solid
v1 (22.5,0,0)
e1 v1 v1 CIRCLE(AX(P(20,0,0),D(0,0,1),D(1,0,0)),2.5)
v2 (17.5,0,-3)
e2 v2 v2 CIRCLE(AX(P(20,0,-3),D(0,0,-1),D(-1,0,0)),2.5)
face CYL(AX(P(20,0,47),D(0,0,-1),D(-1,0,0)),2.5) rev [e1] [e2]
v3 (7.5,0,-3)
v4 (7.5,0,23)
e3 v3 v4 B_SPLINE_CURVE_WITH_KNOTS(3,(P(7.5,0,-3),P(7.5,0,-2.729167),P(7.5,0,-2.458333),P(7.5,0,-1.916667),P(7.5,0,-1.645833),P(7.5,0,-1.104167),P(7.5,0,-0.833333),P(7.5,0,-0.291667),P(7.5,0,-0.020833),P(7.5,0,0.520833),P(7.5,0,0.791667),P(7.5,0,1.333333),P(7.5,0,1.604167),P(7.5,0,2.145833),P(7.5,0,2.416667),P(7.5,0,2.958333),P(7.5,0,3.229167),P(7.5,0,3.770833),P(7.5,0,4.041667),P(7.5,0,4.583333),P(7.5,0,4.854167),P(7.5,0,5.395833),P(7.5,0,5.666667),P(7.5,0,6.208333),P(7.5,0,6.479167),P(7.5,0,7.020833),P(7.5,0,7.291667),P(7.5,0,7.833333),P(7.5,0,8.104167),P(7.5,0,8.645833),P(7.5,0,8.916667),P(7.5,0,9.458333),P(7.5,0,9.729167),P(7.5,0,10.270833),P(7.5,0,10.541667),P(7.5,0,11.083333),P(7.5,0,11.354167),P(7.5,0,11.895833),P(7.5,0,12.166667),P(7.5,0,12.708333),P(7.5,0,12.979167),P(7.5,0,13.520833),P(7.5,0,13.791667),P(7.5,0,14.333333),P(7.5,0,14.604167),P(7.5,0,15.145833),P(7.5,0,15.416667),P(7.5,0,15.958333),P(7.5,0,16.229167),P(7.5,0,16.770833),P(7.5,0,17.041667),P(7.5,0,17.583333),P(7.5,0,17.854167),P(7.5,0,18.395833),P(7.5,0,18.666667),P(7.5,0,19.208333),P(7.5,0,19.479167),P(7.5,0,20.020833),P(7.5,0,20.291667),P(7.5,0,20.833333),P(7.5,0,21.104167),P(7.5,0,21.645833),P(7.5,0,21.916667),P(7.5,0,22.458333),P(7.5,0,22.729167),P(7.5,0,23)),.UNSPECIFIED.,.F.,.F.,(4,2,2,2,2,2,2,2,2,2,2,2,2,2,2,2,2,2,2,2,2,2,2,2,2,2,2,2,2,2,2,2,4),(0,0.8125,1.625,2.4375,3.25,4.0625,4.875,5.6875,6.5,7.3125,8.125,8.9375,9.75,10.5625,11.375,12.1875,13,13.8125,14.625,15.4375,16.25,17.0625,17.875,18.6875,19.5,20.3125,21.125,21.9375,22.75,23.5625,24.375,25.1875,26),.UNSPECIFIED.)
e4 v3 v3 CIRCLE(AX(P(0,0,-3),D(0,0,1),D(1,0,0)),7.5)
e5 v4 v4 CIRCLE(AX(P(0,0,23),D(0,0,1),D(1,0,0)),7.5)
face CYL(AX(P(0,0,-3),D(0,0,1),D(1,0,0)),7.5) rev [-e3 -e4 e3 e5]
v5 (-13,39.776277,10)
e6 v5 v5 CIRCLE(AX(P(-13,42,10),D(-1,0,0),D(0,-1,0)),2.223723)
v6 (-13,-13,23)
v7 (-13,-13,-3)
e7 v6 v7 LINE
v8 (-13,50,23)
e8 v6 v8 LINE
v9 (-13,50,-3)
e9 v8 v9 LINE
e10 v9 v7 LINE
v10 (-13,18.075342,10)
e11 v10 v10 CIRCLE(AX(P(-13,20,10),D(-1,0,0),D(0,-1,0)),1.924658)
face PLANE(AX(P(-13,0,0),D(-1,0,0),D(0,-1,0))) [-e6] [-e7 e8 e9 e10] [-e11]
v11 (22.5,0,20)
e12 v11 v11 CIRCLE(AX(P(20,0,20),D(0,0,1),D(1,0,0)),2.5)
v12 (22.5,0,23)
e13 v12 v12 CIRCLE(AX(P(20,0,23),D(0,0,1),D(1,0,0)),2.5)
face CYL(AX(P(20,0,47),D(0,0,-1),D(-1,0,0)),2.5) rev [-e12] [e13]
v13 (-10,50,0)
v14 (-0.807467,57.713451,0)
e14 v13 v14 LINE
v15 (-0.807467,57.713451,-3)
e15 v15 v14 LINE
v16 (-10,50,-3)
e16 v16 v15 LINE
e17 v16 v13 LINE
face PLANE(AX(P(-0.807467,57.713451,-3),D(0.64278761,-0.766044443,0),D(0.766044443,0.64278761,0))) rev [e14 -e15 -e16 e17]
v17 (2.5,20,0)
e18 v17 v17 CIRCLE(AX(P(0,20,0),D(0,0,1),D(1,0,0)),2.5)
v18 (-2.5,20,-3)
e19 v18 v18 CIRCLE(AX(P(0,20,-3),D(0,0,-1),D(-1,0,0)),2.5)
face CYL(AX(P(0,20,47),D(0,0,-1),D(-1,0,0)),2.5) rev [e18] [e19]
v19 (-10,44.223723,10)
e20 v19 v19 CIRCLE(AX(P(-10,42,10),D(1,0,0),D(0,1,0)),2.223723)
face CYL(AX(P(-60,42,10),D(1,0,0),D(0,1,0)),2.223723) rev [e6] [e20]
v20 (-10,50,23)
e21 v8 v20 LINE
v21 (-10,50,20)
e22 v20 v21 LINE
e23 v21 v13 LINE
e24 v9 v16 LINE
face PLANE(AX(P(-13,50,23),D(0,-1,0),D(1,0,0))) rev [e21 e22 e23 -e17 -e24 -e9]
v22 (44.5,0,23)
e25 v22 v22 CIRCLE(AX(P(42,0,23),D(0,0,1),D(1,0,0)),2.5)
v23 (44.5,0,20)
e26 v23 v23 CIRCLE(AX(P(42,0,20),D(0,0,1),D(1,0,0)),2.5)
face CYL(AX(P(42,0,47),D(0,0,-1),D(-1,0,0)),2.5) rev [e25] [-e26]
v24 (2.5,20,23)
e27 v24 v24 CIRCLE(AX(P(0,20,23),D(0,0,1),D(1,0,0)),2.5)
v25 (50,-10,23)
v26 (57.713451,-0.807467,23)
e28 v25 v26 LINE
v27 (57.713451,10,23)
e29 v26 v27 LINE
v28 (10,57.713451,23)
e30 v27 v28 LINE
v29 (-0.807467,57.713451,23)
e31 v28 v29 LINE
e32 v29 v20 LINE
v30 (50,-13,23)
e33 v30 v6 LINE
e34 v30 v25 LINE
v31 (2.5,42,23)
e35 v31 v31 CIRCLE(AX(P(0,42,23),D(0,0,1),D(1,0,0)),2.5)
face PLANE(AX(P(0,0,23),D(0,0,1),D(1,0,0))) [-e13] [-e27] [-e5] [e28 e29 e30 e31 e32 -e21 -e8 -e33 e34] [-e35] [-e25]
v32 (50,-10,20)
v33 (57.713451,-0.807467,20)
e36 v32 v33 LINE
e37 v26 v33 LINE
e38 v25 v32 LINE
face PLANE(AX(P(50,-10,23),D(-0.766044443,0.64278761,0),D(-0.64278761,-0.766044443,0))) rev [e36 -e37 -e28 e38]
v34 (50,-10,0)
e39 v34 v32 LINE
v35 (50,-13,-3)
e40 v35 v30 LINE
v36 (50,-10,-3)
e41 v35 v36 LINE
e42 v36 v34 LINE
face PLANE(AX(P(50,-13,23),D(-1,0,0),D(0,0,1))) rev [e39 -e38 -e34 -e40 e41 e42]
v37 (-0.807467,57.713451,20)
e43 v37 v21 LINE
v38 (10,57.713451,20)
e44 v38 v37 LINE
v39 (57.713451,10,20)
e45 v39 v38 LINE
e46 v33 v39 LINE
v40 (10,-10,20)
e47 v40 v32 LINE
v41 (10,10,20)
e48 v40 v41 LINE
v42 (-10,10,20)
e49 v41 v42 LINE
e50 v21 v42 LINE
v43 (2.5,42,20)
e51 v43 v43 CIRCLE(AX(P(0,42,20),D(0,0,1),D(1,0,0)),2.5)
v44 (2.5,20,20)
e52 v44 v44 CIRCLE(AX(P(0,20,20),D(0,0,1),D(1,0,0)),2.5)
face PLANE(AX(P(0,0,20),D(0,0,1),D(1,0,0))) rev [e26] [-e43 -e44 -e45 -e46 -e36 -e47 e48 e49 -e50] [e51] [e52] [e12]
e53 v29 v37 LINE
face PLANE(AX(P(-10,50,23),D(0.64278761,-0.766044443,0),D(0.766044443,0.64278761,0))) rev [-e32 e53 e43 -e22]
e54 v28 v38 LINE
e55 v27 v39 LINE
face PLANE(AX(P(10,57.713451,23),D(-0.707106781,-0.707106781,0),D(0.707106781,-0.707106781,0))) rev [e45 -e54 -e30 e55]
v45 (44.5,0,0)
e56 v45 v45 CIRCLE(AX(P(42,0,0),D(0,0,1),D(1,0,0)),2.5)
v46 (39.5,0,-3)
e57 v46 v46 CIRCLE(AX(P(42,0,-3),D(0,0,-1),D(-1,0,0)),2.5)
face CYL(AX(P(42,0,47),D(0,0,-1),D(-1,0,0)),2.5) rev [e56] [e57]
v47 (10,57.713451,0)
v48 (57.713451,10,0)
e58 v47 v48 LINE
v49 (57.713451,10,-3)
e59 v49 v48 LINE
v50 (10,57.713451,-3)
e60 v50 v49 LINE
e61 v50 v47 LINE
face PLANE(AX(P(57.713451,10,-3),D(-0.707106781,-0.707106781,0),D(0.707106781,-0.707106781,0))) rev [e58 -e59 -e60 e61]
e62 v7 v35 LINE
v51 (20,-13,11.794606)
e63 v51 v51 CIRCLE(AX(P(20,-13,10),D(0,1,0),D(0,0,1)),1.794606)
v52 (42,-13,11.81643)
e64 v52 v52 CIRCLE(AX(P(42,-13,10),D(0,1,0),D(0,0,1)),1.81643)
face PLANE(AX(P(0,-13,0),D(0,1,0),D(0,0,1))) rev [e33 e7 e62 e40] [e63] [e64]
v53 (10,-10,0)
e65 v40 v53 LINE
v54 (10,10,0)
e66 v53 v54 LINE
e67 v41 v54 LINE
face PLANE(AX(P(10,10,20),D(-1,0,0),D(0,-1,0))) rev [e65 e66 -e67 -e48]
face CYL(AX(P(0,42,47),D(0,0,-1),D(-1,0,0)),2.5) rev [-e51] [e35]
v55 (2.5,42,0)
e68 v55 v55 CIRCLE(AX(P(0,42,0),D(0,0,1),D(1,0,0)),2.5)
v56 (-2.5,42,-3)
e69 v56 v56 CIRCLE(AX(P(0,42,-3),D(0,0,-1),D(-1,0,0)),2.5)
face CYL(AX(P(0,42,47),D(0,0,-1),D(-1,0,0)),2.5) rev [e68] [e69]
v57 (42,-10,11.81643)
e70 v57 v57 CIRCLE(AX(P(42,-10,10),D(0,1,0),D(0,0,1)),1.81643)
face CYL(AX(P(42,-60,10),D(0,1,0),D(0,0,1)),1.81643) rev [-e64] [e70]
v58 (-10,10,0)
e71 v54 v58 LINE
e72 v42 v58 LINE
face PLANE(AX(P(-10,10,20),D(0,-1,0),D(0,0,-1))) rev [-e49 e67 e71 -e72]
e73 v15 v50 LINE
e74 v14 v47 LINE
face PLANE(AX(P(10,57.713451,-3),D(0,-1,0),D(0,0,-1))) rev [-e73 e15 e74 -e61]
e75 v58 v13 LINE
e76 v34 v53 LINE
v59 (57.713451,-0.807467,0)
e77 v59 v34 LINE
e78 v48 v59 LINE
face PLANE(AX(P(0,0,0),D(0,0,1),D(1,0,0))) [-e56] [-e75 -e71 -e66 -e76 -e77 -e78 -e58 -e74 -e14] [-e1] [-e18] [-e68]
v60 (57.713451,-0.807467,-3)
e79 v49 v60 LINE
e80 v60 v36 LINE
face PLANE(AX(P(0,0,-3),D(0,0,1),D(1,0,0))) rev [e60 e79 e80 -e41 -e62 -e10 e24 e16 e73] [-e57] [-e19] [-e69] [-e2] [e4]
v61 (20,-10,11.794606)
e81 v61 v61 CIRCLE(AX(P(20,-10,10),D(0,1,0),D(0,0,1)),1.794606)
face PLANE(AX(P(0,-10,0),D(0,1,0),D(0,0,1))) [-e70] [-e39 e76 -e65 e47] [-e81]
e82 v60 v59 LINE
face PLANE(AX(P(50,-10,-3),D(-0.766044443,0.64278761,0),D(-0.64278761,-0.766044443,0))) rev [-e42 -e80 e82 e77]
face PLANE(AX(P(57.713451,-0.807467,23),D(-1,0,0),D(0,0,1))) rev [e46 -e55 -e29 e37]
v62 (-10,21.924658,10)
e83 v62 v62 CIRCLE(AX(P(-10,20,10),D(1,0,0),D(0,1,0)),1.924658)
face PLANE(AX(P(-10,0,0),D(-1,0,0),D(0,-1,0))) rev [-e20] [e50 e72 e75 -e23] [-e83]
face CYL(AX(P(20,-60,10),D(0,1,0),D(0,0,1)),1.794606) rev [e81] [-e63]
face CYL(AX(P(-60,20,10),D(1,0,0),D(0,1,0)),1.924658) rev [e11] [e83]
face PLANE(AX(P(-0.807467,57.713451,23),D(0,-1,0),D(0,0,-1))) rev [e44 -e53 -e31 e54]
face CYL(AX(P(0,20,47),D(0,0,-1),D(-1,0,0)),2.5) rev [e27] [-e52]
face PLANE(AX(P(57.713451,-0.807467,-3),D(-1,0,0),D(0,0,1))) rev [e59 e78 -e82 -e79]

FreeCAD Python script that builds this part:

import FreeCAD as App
import Part
import Sketcher
from FreeCAD import Vector
Q = App.Units.Quantity

doc = App.newDocument("Part")
body = doc.addObject("PartDesign::Body", "Body")

sketch1 = doc.addObject("Sketcher::SketchObject", "Sketch")
body.addObject(sketch1)
sketch1.AttachmentSupport = (doc.XY_Plane, [""])
sketch1.MapMode = "FlatFace"
sketch1.addGeometry(Part.LineSegment(Vector(-10, 10, 0), Vector(-10, -10, 0)), False)
sketch1.addGeometry(Part.LineSegment(Vector(-10, -10, 0), Vector(10, -10, 0)), False)
sketch1.addGeometry(Part.LineSegment(Vector(10, -10, 0), Vector(10, 10, 0)), False)
sketch1.addGeometry(Part.LineSegment(Vector(10, 10, 0), Vector(-10, 10, 0)), False)
sketch1.addConstraint(Sketcher.Constraint("Coincident", 0, 2, 1, 1))
sketch1.addConstraint(Sketcher.Constraint("Coincident", 1, 2, 2, 1))
sketch1.addConstraint(Sketcher.Constraint("Coincident", 2, 2, 3, 1))
sketch1.addConstraint(Sketcher.Constraint("Coincident", 3, 2, 0, 1))
sketch1.addConstraint(Sketcher.Constraint("Vertical", 0))
sketch1.addConstraint(Sketcher.Constraint("Horizontal", 1))
sketch1.addConstraint(Sketcher.Constraint("Vertical", 2))
sketch1.addConstraint(Sketcher.Constraint("Horizontal", 3))
sketch1.addConstraint(Sketcher.Constraint("Symmetric", 0, 2, 2, 2, -1, 1))
sketch1.addConstraint(Sketcher.Constraint("Equal", 3, 0))
sketch1.addConstraint(Sketcher.Constraint("DistanceX", 1, 1, 1, 2, 20.0))
pad1 = doc.addObject("PartDesign::Pad", "Pad")
body.addObject(pad1)
pad1.Profile = sketch1
pad1.Length = 20

sketch2 = doc.addObject("Sketcher::SketchObject", "Sketch001")
body.addObject(sketch2)
sketch2.AttachmentSupport = (doc.XY_Plane, [""])
sketch2.MapMode = "FlatFace"
sketch2.AttachmentOffset = App.Placement(Vector(0, 0, 20), App.Rotation())
sketch2.addGeometry(Part.LineSegment(Vector(-10, 50, 0), Vector(-10, -10, 0)), False)
sketch2.addGeometry(Part.LineSegment(Vector(-10, -10, 0), Vector(50, -10, 0)), False)
sketch2.addGeometry(Part.LineSegment(Vector(50, -10, 0), Vector(58, -1, 0)), False)
sketch2.addGeometry(Part.LineSegment(Vector(58, -1, 0), Vector(58, 10, 0)), False)
sketch2.addGeometry(Part.LineSegment(Vector(58, 10, 0), Vector(10, 58, 0)), False)
sketch2.addGeometry(Part.LineSegment(Vector(10, 58, 0), Vector(-1, 58, 0)), False)
sketch2.addGeometry(Part.LineSegment(Vector(-1, 58, 0), Vector(-10, 50, 0)), False)
sketch2.addConstraint(Sketcher.Constraint("Coincident", 0, 2, 1, 1))
sketch2.addConstraint(Sketcher.Constraint("Coincident", 1, 2, 2, 1))
sketch2.addConstraint(Sketcher.Constraint("Coincident", 2, 2, 3, 1))
sketch2.addConstraint(Sketcher.Constraint("Coincident", 3, 2, 4, 1))
sketch2.addConstraint(Sketcher.Constraint("Coincident", 4, 2, 5, 1))
sketch2.addConstraint(Sketcher.Constraint("Coincident", 5, 2, 6, 1))
sketch2.addConstraint(Sketcher.Constraint("Coincident", 6, 2, 0, 1))
sketch2.addConstraint(Sketcher.Constraint("Vertical", 0))
sketch2.addConstraint(Sketcher.Constraint("Horizontal", 1))
sketch2.addConstraint(Sketcher.Constraint("Vertical", 3))
sketch2.addConstraint(Sketcher.Constraint("Horizontal", 5))
sketch2.addConstraint(Sketcher.Constraint("Equal", 1, 0))
sketch2.addConstraint(Sketcher.Constraint("Equal", 5, 3))
sketch2.addConstraint(Sketcher.Constraint("Equal", 2, 6))
sketch2.addConstraint(Sketcher.Constraint("DistanceX", 1, 1, 1, 2, 60.0))
sketch2.addConstraint(Sketcher.Constraint("Angle", 2, Q("50 deg")))
sketch2.addConstraint(Sketcher.Constraint("Angle", 4, Q("135 deg")))
sketch2.addConstraint(Sketcher.Constraint("Distance", 2, 12.0))
sketch2.addConstraint(Sketcher.Constraint("DistanceX", 0, 2, -1, 1, 10.0))
sketch2.addConstraint(Sketcher.Constraint("DistanceY", 0, 2, -1, 1, 10.0))
sketch2.addConstraint(Sketcher.Constraint("DistanceY", -1, 1, 3, 2, 10.0))
pad2 = doc.addObject("PartDesign::Pad", "Pad001")
body.addObject(pad2)
pad2.Profile = sketch2
pad2.Length = 3

sketch3 = doc.addObject("Sketcher::SketchObject", "Sketch002")
body.addObject(sketch3)
sketch3.AttachmentSupport = (doc.XY_Plane, [""])
sketch3.MapMode = "FlatFace"
sketch3.addGeometry(Part.LineSegment(Vector(50, -10, 0), Vector(-10, -10, 0)), False)
sketch3.addGeometry(Part.LineSegment(Vector(-10, -10, 0), Vector(-10, 50, 0)), False)
sketch3.addGeometry(Part.LineSegment(Vector(-10, 50, 0), Vector(-1, 58, 0)), False)
sketch3.addGeometry(Part.LineSegment(Vector(-1, 58, 0), Vector(10, 58, 0)), False)
sketch3.addGeometry(Part.LineSegment(Vector(10, 58, 0), Vector(58, 10, 0)), False)
sketch3.addGeometry(Part.LineSegment(Vector(58, 10, 0), Vector(58, -1, 0)), False)
sketch3.addGeometry(Part.LineSegment(Vector(58, -1, 0), Vector(50, -10, 0)), False)
sketch3.addConstraint(Sketcher.Constraint("Coincident", 0, 2, 1, 1))
sketch3.addConstraint(Sketcher.Constraint("Coincident", 1, 2, 2, 1))
sketch3.addConstraint(Sketcher.Constraint("Coincident", 2, 2, 3, 1))
sketch3.addConstraint(Sketcher.Constraint("Coincident", 3, 2, 4, 1))
sketch3.addConstraint(Sketcher.Constraint("Coincident", 4, 2, 5, 1))
sketch3.addConstraint(Sketcher.Constraint("Coincident", 5, 2, 6, 1))
sketch3.addConstraint(Sketcher.Constraint("Coincident", 6, 2, 0, 1))
sketch3.addConstraint(Sketcher.Constraint("Horizontal", 0))
sketch3.addConstraint(Sketcher.Constraint("Vertical", 1))
sketch3.addConstraint(Sketcher.Constraint("Horizontal", 3))
sketch3.addConstraint(Sketcher.Constraint("Vertical", 5))
sketch3.addConstraint(Sketcher.Constraint("Equal", 0, 1))
sketch3.addConstraint(Sketcher.Constraint("Equal", 3, 5))
sketch3.addConstraint(Sketcher.Constraint("Equal", 2, 6))
sketch3.addConstraint(Sketcher.Constraint("DistanceX", 0, 2, 0, 1, 60.0))
sketch3.addConstraint(Sketcher.Constraint("Angle", 2, Q("40 deg")))
sketch3.addConstraint(Sketcher.Constraint("Angle", 4, Q("-45 deg")))
sketch3.addConstraint(Sketcher.Constraint("Distance", 2, 12.0))
sketch3.addConstraint(Sketcher.Constraint("DistanceX", 0, 2, -1, 1, 10.0))
sketch3.addConstraint(Sketcher.Constraint("DistanceY", 0, 2, -1, 1, 10.0))
sketch3.addConstraint(Sketcher.Constraint("DistanceX", -1, 1, 3, 2, 10.0))
pad3 = doc.addObject("PartDesign::Pad", "Pad002")
body.addObject(pad3)
pad3.Profile = sketch3
pad3.Length = 3
pad3.Reversed = True

sketch4 = doc.addObject("Sketcher::SketchObject", "Sketch003")
body.addObject(sketch4)
sketch4.AttachmentSupport = (doc.YZ_Plane, [""])
sketch4.MapMode = "FlatFace"
sketch4.AttachmentOffset = App.Placement(Vector(0, 0, -10), App.Rotation())
sketch4.addGeometry(Part.LineSegment(Vector(50, -3, 0), Vector(-10, -3, 0)), False)
sketch4.addGeometry(Part.LineSegment(Vector(-10, -3, 0), Vector(-10, 23, 0)), False)
sketch4.addGeometry(Part.LineSegment(Vector(-10, 23, 0), Vector(50, 23, 0)), False)
sketch4.addGeometry(Part.LineSegment(Vector(50, 23, 0), Vector(50, -3, 0)), False)
sketch4.addConstraint(Sketcher.Constraint("Coincident", 0, 2, 1, 1))
sketch4.addConstraint(Sketcher.Constraint("Coincident", 1, 2, 2, 1))
sketch4.addConstraint(Sketcher.Constraint("Coincident", 2, 2, 3, 1))
sketch4.addConstraint(Sketcher.Constraint("Coincident", 3, 2, 0, 1))
sketch4.addConstraint(Sketcher.Constraint("Horizontal", 0))
sketch4.addConstraint(Sketcher.Constraint("Vertical", 1))
sketch4.addConstraint(Sketcher.Constraint("Horizontal", 2))
sketch4.addConstraint(Sketcher.Constraint("Vertical", 3))
sketch4.addConstraint(Sketcher.Constraint("DistanceX", 0, 2, 0, 1, 60.0))
sketch4.addConstraint(Sketcher.Constraint("DistanceY", 1, 1, 1, 2, 26.0))
sketch4.addConstraint(Sketcher.Constraint("DistanceX", 0, 2, -1, 1, 10.0))
sketch4.addConstraint(Sketcher.Constraint("DistanceY", 0, 2, -1, 1, 3.0))
pad4 = doc.addObject("PartDesign::Pad", "Pad003")
body.addObject(pad4)
pad4.Profile = sketch4
pad4.Length = 3
pad4.Reversed = True

sketch5 = doc.addObject("Sketcher::SketchObject", "Sketch004")
body.addObject(sketch5)
sketch5.AttachmentSupport = (doc.XZ_Plane, [""])
sketch5.MapMode = "FlatFace"
sketch5.AttachmentOffset = App.Placement(Vector(0, 0, 10), App.Rotation())
sketch5.addGeometry(Part.LineSegment(Vector(-13, 23, 0), Vector(-13, -3, 0)), False)
sketch5.addGeometry(Part.LineSegment(Vector(-13, -3, 0), Vector(50, -3, 0)), False)
sketch5.addGeometry(Part.LineSegment(Vector(50, -3, 0), Vector(50, 23, 0)), False)
sketch5.addGeometry(Part.LineSegment(Vector(50, 23, 0), Vector(-13, 23, 0)), False)
sketch5.addConstraint(Sketcher.Constraint("Coincident", 0, 2, 1, 1))
sketch5.addConstraint(Sketcher.Constraint("Coincident", 1, 2, 2, 1))
sketch5.addConstraint(Sketcher.Constraint("Coincident", 2, 2, 3, 1))
sketch5.addConstraint(Sketcher.Constraint("Coincident", 3, 2, 0, 1))
sketch5.addConstraint(Sketcher.Constraint("Vertical", 0))
sketch5.addConstraint(Sketcher.Constraint("Horizontal", 1))
sketch5.addConstraint(Sketcher.Constraint("Vertical", 2))
sketch5.addConstraint(Sketcher.Constraint("Horizontal", 3))
sketch5.addConstraint(Sketcher.Constraint("DistanceX", 1, 1, 1, 2, 63.0))
sketch5.addConstraint(Sketcher.Constraint("DistanceY", 0, 2, 0, 1, 26.0))
sketch5.addConstraint(Sketcher.Constraint("DistanceX", 0, 2, -1, 1, 13.0))
sketch5.addConstraint(Sketcher.Constraint("DistanceY", 0, 2, -1, 1, 3.0))
pad5 = doc.addObject("PartDesign::Pad", "Pad004")
body.addObject(pad5)
pad5.Profile = sketch5
pad5.Length = 3

sketch6 = doc.addObject("Sketcher::SketchObject", "Sketch005")
body.addObject(sketch6)
sketch6.AttachmentSupport = (doc.XY_Plane, [""])
sketch6.MapMode = "FlatFace"
sketch6.AttachmentOffset = App.Placement(Vector(0, 0, 23), App.Rotation())
sketch6.addGeometry(Part.Circle(Vector(0, 0, 0), Vector(0, 0, 1), 8), False)
sketch6.addConstraint(Sketcher.Constraint("Coincident", 0, 3, -1, 1))
sketch6.addConstraint(Sketcher.Constraint("Diameter", 0, 15.0))
pocket1 = doc.addObject("PartDesign::Pocket", "Pocket")
body.addObject(pocket1)
pocket1.Profile = sketch6
pocket1.Type = "ThroughAll"

sketch7 = doc.addObject("Sketcher::SketchObject", "Sketch006")
body.addObject(sketch7)
sketch7.AttachmentSupport = (doc.XY_Plane, [""])
sketch7.MapMode = "FlatFace"
sketch7.AttachmentOffset = App.Placement(Vector(0, 0, -3), App.Rotation())
sketch7.addGeometry(Part.Circle(Vector(20, 0, 0), Vector(0, 0, 1), 2.5), False)
sketch7.addGeometry(Part.Circle(Vector(42, 0, 0), Vector(0, 0, 1), 2.5), False)
sketch7.addGeometry(Part.Circle(Vector(0, 20, 0), Vector(0, 0, 1), 2.5), False)
sketch7.addGeometry(Part.Circle(Vector(0, 42, 0), Vector(0, 0, 1), 2.5), False)
sketch7.addConstraint(Sketcher.Constraint("Equal", 0, 1))
sketch7.addConstraint(Sketcher.Constraint("Equal", 1, 2))
sketch7.addConstraint(Sketcher.Constraint("Equal", 2, 3))
sketch7.addConstraint(Sketcher.Constraint("PointOnObject", 0, 3, -1))
sketch7.addConstraint(Sketcher.Constraint("PointOnObject", 1, 3, -1))
sketch7.addConstraint(Sketcher.Constraint("PointOnObject", 2, 3, -2))
sketch7.addConstraint(Sketcher.Constraint("PointOnObject", 3, 3, -2))
sketch7.addConstraint(Sketcher.Constraint("Diameter", 0, 5.0))
sketch7.addConstraint(Sketcher.Constraint("DistanceX", -1, 1, 0, 3, 20.0))
sketch7.addConstraint(Sketcher.Constraint("DistanceX", -1, 1, 1, 3, 42.0))
sketch7.addConstraint(Sketcher.Constraint("DistanceY", -1, 1, 2, 3, 20.0))
sketch7.addConstraint(Sketcher.Constraint("DistanceY", -1, 1, 3, 3, 42.0))
pocket2 = doc.addObject("PartDesign::Pocket", "Pocket001")
body.addObject(pocket2)
pocket2.Profile = sketch7
pocket2.Length = 50
pocket2.Reversed = True

sketch8 = doc.addObject("Sketcher::SketchObject", "Sketch007")
body.addObject(sketch8)
sketch8.AttachmentSupport = (doc.YZ_Plane, [""])
sketch8.MapMode = "FlatFace"
sketch8.AttachmentOffset = App.Placement(Vector(0, 0, -10), App.Rotation())
sketch8.addGeometry(Part.Circle(Vector(20, 10, 0), Vector(0, 0, 1), 1.9), False)
sketch8.addGeometry(Part.Circle(Vector(42, 10, 0), Vector(0, 0, 1), 2.2), False)
sketch8.addConstraint(Sketcher.Constraint("Horizontal", 0, 3, 1, 3))
sketch8.addConstraint(Sketcher.Constraint("DistanceX", -1, 1, 0, 3, 20.0))
sketch8.addConstraint(Sketcher.Constraint("DistanceY", -1, 1, 0, 3, 10.0))
sketch8.addConstraint(Sketcher.Constraint("DistanceX", -1, 1, 1, 3, 42.0))
sketch8.addConstraint(Sketcher.Constraint("Diameter", 0, 3.849317))
sketch8.addConstraint(Sketcher.Constraint("Diameter", 1, 4.447447))
pocket3 = doc.addObject("PartDesign::Pocket", "Pocket002")
body.addObject(pocket3)
pocket3.Profile = sketch8
pocket3.Length = 50

sketch9 = doc.addObject("Sketcher::SketchObject", "Sketch008")
body.addObject(sketch9)
sketch9.AttachmentSupport = (doc.XZ_Plane, [""])
sketch9.MapMode = "FlatFace"
sketch9.AttachmentOffset = App.Placement(Vector(0, 0, 10), App.Rotation())
sketch9.addGeometry(Part.Circle(Vector(20, 10, 0), Vector(0, 0, 1), 1.8), False)
sketch9.addGeometry(Part.Circle(Vector(42, 10, 0), Vector(0, 0, 1), 1.8), False)
sketch9.addConstraint(Sketcher.Constraint("Horizontal", 0, 3, 1, 3))
sketch9.addConstraint(Sketcher.Constraint("DistanceX", -1, 1, 0, 3, 20.0))
sketch9.addConstraint(Sketcher.Constraint("DistanceY", -1, 1, 0, 3, 10.0))
sketch9.addConstraint(Sketcher.Constraint("DistanceX", -1, 1, 1, 3, 42.0))
sketch9.addConstraint(Sketcher.Constraint("Diameter", 0, 3.589212))
sketch9.addConstraint(Sketcher.Constraint("Diameter", 1, 3.63286))
pocket4 = doc.addObject("PartDesign::Pocket", "Pocket003")
body.addObject(pocket4)
pocket4.Profile = sketch9
pocket4.Length = 50
pocket4.Reversed = True

doc.recompute()
